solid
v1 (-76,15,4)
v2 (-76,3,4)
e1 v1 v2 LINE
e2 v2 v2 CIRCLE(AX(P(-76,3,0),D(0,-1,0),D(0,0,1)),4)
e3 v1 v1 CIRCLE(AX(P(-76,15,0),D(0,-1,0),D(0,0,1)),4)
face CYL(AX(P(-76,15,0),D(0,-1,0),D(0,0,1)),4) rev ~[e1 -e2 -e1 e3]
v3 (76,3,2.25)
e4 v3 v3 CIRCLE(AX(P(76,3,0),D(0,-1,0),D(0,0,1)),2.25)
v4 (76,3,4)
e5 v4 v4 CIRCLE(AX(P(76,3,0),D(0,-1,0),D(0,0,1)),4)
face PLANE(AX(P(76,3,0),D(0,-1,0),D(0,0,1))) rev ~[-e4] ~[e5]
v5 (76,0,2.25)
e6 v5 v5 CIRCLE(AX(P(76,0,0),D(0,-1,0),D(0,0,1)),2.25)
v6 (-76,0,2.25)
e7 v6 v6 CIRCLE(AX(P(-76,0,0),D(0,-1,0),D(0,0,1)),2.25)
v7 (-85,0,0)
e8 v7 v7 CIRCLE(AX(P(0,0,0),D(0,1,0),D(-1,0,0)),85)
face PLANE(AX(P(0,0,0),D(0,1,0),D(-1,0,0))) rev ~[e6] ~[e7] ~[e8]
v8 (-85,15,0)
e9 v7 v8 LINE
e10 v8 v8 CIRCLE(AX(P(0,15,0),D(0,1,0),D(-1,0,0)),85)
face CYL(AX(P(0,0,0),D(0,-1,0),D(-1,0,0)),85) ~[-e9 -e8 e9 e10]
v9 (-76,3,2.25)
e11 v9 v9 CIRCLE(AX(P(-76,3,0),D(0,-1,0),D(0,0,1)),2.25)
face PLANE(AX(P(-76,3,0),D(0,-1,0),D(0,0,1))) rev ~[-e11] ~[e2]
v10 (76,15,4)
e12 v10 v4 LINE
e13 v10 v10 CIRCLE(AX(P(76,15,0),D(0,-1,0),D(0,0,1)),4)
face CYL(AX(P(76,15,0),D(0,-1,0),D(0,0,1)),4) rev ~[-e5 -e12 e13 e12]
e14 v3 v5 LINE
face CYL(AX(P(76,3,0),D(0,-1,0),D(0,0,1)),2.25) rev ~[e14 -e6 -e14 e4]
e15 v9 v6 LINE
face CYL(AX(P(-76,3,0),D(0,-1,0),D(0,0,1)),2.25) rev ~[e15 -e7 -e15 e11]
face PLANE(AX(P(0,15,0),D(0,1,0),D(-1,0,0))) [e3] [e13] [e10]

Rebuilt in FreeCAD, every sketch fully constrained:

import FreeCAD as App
import Part
import Sketcher
from FreeCAD import Vector

doc = App.newDocument("Part")
params = doc.addObject("Spreadsheet::Sheet", "Params")
for row, (alias, value) in enumerate([
    ("sketch1_diameter", "170 mm"),
    ("pad1_length", "15 mm"),
    ("sketch2_diameter", "4.5 mm"),
    ("hole_diameter", "4.5 mm"),
    ("hole_depth", "15 mm"),
    ("hole_cbore_diameter", "8 mm"),
    ("hole_cbore_depth", "12 mm"),
], start=1):
    params.set(f"A{row}", alias)
    params.set(f"B{row}", "=" + value)
    params.setAlias(f"B{row}", alias)

body = doc.addObject("PartDesign::Body", "Body")

# Sketch on XZ plane
sketch1 = body.newObject("Sketcher::SketchObject", "Sketch")
sketch1.AttachmentSupport = (doc.getObject("XZ_Plane"), [""])
sketch1.MapMode = "FlatFace"
sketch1.addGeometry(Part.Circle(Vector(0, 0, 0), Vector(0, 0, 1), 85), False)
sketch1.addConstraint([
    Sketcher.Constraint("Coincident", 0, 3, -1, 1),
    Sketcher.Constraint("Diameter", 0, 170.0),
])
sketch1.setExpression("Constraints[1]", "Params.sketch1_diameter")
pad1 = body.newObject("PartDesign::Pad", "Pad")
pad1.Profile = sketch1
pad1.setExpression("Length", "Params.pad1_length")
pad1.Reversed = True

# Sketch on XZ plane
sketch2 = body.newObject("Sketcher::SketchObject", "Sketch001")
sketch2.AttachmentSupport = (doc.getObject("XZ_Plane"), [""])
sketch2.MapMode = "FlatFace"
sketch2.AttachmentOffset = App.Placement(Vector(0, 0, -15), App.Rotation())
sketch2.addGeometry([
    Part.Circle(Vector(-76, 0, 0), Vector(0, 0, 1), 2.2),
    Part.Circle(Vector(76, 0, 0), Vector(0, 0, 1), 2.2),
], False)
sketch2.addConstraint([
    Sketcher.Constraint("Equal", 0, 1),
    Sketcher.Constraint("Symmetric", 0, 3, 1, 3, -1, 1),
    Sketcher.Constraint("PointOnObject", 0, 3, -1),
    Sketcher.Constraint("Diameter", 0, 4.5),
    Sketcher.Constraint("DistanceX", 0, 3, -1, 1, 76.0),
])
sketch2.setExpression("Constraints[3]", "Params.sketch2_diameter")
doc.recompute()
hole = body.newObject("PartDesign::Hole", "Hole")
hole.Profile = sketch2
hole.ThreadType = "None"
hole.setExpression("Diameter", "Params.hole_diameter")
hole.DepthType = "Dimension"
hole.setExpression("Depth", "Params.hole_depth")
hole.DrillPoint = "Flat"
hole.HoleCutType = "Counterbore"
hole.setExpression("HoleCutDiameter", "Params.hole_cbore_diameter")
hole.setExpression("HoleCutDepth", "Params.hole_cbore_depth")
hole.Reversed = True

doc.recompute()
